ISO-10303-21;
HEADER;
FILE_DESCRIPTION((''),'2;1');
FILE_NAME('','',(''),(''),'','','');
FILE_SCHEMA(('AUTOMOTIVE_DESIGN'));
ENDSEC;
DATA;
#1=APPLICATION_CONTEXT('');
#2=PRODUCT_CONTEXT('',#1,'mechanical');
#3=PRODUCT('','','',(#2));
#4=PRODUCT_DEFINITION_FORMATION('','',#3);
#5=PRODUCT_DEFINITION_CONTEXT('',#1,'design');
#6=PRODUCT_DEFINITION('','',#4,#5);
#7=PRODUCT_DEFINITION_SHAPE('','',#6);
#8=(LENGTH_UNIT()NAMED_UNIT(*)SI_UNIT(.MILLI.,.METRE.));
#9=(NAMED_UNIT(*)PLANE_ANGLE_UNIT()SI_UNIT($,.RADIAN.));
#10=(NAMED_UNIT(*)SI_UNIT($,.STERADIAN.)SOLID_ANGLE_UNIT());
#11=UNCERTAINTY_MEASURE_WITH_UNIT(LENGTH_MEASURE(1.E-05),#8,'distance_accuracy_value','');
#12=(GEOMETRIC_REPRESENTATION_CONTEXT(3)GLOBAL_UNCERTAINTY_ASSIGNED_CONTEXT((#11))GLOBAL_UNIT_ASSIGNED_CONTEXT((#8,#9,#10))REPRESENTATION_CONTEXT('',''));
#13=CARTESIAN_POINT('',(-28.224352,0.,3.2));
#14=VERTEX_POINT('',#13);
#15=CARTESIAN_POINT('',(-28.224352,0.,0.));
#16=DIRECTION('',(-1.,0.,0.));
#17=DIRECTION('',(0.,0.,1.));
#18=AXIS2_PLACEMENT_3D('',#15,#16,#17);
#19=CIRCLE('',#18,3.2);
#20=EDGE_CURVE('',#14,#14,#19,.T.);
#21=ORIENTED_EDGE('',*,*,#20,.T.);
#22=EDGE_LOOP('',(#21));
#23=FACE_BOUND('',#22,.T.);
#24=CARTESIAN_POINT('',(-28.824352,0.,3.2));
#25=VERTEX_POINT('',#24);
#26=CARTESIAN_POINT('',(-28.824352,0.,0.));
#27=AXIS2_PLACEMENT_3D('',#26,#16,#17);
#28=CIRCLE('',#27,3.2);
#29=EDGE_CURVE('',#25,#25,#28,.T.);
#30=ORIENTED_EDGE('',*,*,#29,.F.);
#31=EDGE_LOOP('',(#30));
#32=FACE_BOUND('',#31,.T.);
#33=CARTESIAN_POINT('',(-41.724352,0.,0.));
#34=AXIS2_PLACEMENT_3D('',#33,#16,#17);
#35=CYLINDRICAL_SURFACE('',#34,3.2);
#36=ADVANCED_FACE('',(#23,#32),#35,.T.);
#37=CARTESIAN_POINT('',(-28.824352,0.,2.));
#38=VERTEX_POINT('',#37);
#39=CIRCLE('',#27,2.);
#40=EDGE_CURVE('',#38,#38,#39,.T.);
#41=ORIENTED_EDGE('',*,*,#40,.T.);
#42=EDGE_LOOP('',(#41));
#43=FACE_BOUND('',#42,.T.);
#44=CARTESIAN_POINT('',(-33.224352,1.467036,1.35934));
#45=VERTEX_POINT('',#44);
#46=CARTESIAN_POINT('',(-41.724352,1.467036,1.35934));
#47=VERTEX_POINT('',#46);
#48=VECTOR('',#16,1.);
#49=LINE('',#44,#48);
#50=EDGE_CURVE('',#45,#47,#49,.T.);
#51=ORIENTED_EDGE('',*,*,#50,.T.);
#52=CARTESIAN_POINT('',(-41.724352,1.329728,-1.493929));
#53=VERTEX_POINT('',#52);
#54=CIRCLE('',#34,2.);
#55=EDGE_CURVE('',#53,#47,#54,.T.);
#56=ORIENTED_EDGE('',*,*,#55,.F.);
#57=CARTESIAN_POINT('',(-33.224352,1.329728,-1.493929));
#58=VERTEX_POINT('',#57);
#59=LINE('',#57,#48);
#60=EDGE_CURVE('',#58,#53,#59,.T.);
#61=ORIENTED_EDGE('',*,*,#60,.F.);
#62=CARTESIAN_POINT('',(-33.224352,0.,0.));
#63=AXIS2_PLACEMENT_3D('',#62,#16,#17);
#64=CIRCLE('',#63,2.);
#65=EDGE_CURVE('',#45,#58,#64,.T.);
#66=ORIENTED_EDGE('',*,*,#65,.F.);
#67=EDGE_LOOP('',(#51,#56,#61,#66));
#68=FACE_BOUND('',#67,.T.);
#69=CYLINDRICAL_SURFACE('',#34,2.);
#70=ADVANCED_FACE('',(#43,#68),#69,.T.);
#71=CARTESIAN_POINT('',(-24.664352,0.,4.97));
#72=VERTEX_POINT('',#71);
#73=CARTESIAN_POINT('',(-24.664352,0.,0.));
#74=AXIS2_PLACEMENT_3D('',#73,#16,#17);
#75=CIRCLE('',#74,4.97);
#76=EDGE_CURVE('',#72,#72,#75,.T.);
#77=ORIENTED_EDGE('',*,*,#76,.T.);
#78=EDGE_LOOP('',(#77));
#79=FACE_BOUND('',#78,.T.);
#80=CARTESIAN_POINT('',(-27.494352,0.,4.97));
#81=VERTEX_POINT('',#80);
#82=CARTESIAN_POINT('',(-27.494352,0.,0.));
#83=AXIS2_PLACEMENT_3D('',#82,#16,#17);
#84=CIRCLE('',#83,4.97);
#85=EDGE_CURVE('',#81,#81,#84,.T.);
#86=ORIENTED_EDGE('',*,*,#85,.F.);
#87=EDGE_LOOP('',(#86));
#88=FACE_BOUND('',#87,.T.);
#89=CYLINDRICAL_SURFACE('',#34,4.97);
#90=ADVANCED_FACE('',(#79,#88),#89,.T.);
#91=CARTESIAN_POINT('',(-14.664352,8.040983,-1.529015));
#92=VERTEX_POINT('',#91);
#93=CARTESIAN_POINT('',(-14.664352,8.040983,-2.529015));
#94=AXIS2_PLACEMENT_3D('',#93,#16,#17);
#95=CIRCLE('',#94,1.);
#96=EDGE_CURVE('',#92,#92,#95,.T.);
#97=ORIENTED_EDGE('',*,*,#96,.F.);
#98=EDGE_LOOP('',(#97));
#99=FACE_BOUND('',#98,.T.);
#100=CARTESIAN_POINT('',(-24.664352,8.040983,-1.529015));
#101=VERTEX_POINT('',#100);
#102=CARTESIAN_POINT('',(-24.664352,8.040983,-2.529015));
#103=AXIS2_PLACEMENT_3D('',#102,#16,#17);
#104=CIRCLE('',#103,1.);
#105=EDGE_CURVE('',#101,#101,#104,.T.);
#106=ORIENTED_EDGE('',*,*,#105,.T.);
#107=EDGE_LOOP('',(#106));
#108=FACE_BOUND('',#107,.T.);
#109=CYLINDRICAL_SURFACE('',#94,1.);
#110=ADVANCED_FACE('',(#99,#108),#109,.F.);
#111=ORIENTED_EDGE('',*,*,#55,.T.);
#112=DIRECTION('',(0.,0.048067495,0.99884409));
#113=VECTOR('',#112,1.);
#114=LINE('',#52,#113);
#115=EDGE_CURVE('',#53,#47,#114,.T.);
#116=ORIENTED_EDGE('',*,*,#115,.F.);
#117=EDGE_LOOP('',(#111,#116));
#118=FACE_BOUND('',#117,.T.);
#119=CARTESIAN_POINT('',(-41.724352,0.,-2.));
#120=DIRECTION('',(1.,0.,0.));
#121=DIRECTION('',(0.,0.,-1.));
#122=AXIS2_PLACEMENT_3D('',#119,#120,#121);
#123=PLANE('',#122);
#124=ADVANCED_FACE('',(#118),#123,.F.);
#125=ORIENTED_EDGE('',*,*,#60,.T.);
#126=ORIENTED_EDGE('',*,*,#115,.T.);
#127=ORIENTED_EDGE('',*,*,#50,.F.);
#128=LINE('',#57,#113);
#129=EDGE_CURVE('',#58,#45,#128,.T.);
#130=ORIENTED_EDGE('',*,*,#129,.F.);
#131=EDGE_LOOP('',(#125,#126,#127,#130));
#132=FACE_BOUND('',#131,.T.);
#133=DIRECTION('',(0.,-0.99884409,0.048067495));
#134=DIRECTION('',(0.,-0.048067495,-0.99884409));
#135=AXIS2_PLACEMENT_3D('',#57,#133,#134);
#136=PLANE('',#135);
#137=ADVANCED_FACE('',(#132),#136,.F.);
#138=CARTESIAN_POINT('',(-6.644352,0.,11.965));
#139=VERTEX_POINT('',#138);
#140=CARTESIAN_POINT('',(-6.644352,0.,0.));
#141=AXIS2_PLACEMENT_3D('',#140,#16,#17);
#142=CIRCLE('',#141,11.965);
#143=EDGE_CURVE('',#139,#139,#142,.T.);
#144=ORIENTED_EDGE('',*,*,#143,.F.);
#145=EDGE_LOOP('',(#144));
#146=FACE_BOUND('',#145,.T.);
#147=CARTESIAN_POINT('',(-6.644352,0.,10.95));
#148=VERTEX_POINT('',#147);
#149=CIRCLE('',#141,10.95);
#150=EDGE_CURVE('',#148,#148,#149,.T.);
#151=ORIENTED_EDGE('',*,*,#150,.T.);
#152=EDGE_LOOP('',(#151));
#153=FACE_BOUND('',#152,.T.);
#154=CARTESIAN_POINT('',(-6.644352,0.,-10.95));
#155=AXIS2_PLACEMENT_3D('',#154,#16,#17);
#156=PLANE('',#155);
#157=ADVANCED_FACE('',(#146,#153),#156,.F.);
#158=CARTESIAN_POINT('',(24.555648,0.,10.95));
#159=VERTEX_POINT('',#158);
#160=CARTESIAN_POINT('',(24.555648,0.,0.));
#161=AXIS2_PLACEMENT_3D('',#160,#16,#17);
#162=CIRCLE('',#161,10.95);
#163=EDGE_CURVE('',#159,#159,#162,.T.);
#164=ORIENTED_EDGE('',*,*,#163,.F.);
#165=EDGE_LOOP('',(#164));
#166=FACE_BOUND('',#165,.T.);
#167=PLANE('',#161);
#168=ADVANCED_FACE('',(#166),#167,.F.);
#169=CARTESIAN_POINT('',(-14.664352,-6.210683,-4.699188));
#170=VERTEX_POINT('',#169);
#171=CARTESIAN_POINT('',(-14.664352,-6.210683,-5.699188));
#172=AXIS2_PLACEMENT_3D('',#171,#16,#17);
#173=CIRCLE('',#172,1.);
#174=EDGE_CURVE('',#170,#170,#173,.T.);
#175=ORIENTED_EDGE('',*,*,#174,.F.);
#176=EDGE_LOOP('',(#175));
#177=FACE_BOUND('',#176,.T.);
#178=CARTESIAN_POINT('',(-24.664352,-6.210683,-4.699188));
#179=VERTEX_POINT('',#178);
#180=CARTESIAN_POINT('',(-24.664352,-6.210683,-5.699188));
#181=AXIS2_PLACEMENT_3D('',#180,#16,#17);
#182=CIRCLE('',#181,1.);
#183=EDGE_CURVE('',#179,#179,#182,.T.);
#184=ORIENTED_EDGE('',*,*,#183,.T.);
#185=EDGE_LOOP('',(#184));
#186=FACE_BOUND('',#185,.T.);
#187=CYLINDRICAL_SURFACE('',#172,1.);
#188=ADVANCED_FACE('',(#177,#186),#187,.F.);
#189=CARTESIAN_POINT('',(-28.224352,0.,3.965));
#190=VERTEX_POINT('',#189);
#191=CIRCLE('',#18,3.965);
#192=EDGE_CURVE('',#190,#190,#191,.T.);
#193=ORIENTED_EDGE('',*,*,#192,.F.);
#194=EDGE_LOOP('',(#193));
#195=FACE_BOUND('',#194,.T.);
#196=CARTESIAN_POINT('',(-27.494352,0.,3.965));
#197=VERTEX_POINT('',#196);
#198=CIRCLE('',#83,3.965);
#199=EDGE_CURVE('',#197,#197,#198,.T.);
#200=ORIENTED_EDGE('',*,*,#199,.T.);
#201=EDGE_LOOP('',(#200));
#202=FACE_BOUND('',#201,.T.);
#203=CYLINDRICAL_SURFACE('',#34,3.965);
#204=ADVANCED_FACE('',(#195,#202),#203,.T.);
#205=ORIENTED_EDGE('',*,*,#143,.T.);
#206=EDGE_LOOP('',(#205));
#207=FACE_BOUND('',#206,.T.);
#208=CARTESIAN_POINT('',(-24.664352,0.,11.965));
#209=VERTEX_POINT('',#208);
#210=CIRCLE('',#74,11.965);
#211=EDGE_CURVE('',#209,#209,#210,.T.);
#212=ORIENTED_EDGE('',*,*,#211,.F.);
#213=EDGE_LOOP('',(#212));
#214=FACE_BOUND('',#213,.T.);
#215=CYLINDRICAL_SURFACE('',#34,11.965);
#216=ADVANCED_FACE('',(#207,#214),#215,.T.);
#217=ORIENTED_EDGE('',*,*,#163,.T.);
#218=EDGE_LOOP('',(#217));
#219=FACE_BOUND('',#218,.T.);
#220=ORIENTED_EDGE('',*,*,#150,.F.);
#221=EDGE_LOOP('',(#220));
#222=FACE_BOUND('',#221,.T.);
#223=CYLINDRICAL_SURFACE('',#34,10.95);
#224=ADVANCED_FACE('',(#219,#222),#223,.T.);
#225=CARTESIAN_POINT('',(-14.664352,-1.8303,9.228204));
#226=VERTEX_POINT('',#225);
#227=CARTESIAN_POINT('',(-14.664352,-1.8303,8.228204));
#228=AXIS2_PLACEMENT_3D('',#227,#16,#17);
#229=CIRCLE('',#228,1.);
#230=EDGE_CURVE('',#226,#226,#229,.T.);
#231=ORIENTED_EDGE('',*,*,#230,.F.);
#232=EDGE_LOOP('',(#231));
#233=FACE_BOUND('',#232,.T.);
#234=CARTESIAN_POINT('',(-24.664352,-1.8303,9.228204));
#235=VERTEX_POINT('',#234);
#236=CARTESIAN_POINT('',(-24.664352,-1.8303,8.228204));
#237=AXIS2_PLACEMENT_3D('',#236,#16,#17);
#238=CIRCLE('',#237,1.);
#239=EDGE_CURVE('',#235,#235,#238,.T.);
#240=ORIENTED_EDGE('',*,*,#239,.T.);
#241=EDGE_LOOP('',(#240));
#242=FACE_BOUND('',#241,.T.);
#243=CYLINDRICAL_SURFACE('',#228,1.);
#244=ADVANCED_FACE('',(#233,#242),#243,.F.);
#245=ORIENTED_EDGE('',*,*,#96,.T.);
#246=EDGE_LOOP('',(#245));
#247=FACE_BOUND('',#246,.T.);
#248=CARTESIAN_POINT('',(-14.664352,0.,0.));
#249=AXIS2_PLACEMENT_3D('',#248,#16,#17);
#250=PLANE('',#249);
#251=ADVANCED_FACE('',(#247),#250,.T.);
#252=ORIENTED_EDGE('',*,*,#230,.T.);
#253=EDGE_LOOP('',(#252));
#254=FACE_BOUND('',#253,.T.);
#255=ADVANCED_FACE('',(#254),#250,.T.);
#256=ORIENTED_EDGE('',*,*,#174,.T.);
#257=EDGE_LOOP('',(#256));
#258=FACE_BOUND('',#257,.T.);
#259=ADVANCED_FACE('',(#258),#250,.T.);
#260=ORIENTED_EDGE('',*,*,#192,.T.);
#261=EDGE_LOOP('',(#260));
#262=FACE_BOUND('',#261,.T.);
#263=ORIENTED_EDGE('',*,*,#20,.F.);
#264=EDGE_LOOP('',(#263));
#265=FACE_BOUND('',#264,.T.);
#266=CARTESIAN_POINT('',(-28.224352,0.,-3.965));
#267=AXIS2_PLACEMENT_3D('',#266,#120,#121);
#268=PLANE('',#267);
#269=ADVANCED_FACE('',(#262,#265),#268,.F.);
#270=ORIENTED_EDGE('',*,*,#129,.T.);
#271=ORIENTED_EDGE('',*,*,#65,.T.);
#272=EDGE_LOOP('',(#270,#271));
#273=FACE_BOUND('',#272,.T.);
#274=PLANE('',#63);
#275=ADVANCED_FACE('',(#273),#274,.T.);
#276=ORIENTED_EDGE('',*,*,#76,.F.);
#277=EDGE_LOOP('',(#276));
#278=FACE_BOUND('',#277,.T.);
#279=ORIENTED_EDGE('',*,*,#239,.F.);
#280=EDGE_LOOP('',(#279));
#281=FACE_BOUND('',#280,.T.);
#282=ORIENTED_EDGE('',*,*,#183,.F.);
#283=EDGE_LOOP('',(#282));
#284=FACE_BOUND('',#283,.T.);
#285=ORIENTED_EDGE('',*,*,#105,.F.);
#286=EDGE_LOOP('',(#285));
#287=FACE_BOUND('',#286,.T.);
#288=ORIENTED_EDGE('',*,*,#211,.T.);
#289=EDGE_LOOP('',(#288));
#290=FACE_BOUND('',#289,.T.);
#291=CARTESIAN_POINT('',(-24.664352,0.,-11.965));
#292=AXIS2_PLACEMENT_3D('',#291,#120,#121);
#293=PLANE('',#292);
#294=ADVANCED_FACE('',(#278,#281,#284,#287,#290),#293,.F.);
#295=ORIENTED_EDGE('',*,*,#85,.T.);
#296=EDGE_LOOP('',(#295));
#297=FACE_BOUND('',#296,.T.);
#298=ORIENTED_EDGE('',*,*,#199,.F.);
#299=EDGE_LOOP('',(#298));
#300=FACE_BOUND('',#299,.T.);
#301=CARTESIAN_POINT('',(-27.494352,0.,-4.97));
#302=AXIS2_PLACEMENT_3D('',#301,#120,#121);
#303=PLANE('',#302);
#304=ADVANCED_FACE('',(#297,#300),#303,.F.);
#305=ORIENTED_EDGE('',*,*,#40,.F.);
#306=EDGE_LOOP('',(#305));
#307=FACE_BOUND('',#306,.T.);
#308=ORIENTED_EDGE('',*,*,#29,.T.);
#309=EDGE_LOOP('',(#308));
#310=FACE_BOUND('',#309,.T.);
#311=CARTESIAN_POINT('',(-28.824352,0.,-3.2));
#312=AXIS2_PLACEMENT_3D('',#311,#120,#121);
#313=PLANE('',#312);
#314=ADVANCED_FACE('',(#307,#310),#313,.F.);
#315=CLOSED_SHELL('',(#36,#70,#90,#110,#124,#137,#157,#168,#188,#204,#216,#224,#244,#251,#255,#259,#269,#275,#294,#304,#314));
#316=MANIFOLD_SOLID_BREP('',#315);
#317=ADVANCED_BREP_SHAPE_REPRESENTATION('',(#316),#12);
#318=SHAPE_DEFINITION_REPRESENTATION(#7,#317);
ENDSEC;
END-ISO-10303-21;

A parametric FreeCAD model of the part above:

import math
import FreeCAD as App
import Part
import Sketcher

V = App.Vector
Q = App.Units.Quantity

doc = App.newDocument("Part")
body = doc.addObject("PartDesign::Body", "Body")

# Sketch on XZ plane
sketch1 = body.newObject("Sketcher::SketchObject", "Sketch")
sketch1.AttachmentSupport = (doc.getObject("XZ_Plane"), [""])
sketch1.MapMode = "FlatFace"
sketch1.addGeometry(Part.LineSegment(V(-41.724352, 0, 0), V(24.555648, 0, 0)), False)
sketch1.addGeometry(Part.LineSegment(V(24.555648, 0, 0), V(24.555648, -10.95, 0)), False)
sketch1.addGeometry(Part.LineSegment(V(24.555648, -10.95, 0), V(-6.644352, -10.95, 0)), False)
sketch1.addGeometry(Part.LineSegment(V(-6.644352, -10.95, 0), V(-6.644352, -11.965, 0)), False)
sketch1.addGeometry(Part.LineSegment(V(-6.644352, -11.965, 0), V(-24.664352, -11.965, 0)), False)
sketch1.addGeometry(Part.LineSegment(V(-24.664352, -11.965, 0), V(-24.664352, -4.97, 0)), False)
sketch1.addGeometry(Part.LineSegment(V(-24.664352, -4.97, 0), V(-27.494352, -4.97, 0)), False)
sketch1.addGeometry(Part.LineSegment(V(-27.494352, -4.97, 0), V(-27.494352, -3.965, 0)), False)
sketch1.addGeometry(Part.LineSegment(V(-27.494352, -3.965, 0), V(-28.224352, -3.965, 0)), False)
sketch1.addGeometry(Part.LineSegment(V(-28.224352, -3.965, 0), V(-28.224352, -3.2, 0)), False)
sketch1.addGeometry(Part.LineSegment(V(-28.224352, -3.2, 0), V(-28.824352, -3.2, 0)), False)
sketch1.addGeometry(Part.LineSegment(V(-28.824352, -3.2, 0), V(-28.824352, -2, 0)), False)
sketch1.addGeometry(Part.LineSegment(V(-28.824352, -2, 0), V(-41.724352, -2, 0)), False)
sketch1.addGeometry(Part.LineSegment(V(-41.724352, -2, 0), V(-41.724352, 0, 0)), False)
sketch1.addConstraint(Sketcher.Constraint("Coincident", 0, 2, 1, 1))
sketch1.addConstraint(Sketcher.Constraint("Coincident", 1, 2, 2, 1))
sketch1.addConstraint(Sketcher.Constraint("Coincident", 2, 2, 3, 1))
sketch1.addConstraint(Sketcher.Constraint("Coincident", 3, 2, 4, 1))
sketch1.addConstraint(Sketcher.Constraint("Coincident", 4, 2, 5, 1))
sketch1.addConstraint(Sketcher.Constraint("Coincident", 5, 2, 6, 1))
sketch1.addConstraint(Sketcher.Constraint("Coincident", 6, 2, 7, 1))
sketch1.addConstraint(Sketcher.Constraint("Coincident", 7, 2, 8, 1))
sketch1.addConstraint(Sketcher.Constraint("Coincident", 8, 2, 9, 1))
sketch1.addConstraint(Sketcher.Constraint("Coincident", 9, 2, 10, 1))
sketch1.addConstraint(Sketcher.Constraint("Coincident", 10, 2, 11, 1))
sketch1.addConstraint(Sketcher.Constraint("Coincident", 11, 2, 12, 1))
sketch1.addConstraint(Sketcher.Constraint("Coincident", 12, 2, 13, 1))
sketch1.addConstraint(Sketcher.Constraint("Coincident", 13, 2, 0, 1))
sketch1.addConstraint(Sketcher.Constraint("Horizontal", 0))
sketch1.addConstraint(Sketcher.Constraint("Vertical", 1))
sketch1.addConstraint(Sketcher.Constraint("Horizontal", 2))
sketch1.addConstraint(Sketcher.Constraint("Vertical", 3))
sketch1.addConstraint(Sketcher.Constraint("Horizontal", 4))
sketch1.addConstraint(Sketcher.Constraint("Vertical", 5))
sketch1.addConstraint(Sketcher.Constraint("Horizontal", 6))
sketch1.addConstraint(Sketcher.Constraint("Vertical", 7))
sketch1.addConstraint(Sketcher.Constraint("Horizontal", 8))
sketch1.addConstraint(Sketcher.Constraint("Vertical", 9))
sketch1.addConstraint(Sketcher.Constraint("Horizontal", 10))
sketch1.addConstraint(Sketcher.Constraint("Vertical", 11))
sketch1.addConstraint(Sketcher.Constraint("Horizontal", 12))
sketch1.addConstraint(Sketcher.Constraint("Vertical", 13))
sketch1.addConstraint(Sketcher.Constraint("PointOnObject", 0, 2, -1))
sketch1.addConstraint(Sketcher.Constraint("DistanceY", 13, 1, 13, 2, Q("2 mm")))
sketch1.addConstraint(Sketcher.Constraint("DistanceX", 2, 2, 2, 1, Q("31.2 mm")))
sketch1.addConstraint(Sketcher.Constraint("DistanceX", 10, 2, 10, 1, Q("0.6 mm")))
sketch1.addConstraint(Sketcher.Constraint("DistanceX", 12, 2, 12, 1, Q("12.9 mm")))
sketch1.addConstraint(Sketcher.Constraint("DistanceY", 11, 1, 11, 2, Q("1.2 mm")))
sketch1.addConstraint(Sketcher.Constraint("DistanceY", 4, 2, 7, 2, Q("8 mm")))
sketch1.addConstraint(Sketcher.Constraint("DistanceX", 0, 1, 0, 2, Q("66.28 mm")))
sketch1.addConstraint(Sketcher.Constraint("DistanceX", 4, 2, 4, 1, Q("18.02 mm")))
sketch1.addConstraint(Sketcher.Constraint("DistanceX", 6, 2, 6, 1, Q("2.83 mm")))
sketch1.addConstraint(Sketcher.Constraint("DistanceY", 1, 2, 1, 1, Q("10.95 mm")))
sketch1.addConstraint(Sketcher.Constraint("DistanceY", 3, 2, 3, 1, Q("1.015 mm")))
sketch1.addConstraint(Sketcher.Constraint("DistanceY", 5, 1, 5, 2, Q("6.995 mm")))
sketch1.addConstraint(Sketcher.Constraint("DistanceX", -1, 1, 0, 2, Q("24.555648 mm")))
revolution = body.newObject("PartDesign::Revolution", "Revolution")
revolution.Profile = sketch1
revolution.ReferenceAxis = (sketch1, ["H_Axis"])
revolution.Angle = 360

# Sketch on YZ plane
sketch2 = body.newObject("Sketcher::SketchObject", "Sketch001")
sketch2.AttachmentSupport = (doc.getObject("YZ_Plane"), [""])
sketch2.MapMode = "FlatFace"
sketch2.AttachmentOffset = App.Placement(V(0, 0, -41.724352), App.Rotation())
sketch2.addGeometry(Part.LineSegment(V(1.329728, -1.493929, 0), V(1.467036, 1.35934, 0)), False)
sketch2.addGeometry(Part.ArcOfCircle(Part.Circle(V(0, 0, 0), V(0, 0, 1), 2), math.radians(-48.328122), math.radians(42.81787)), False)
sketch2.addConstraint(Sketcher.Constraint("Coincident", 0, 1, 1, 1))
sketch2.addConstraint(Sketcher.Constraint("Coincident", 1, 2, 0, 2))
sketch2.addConstraint(Sketcher.Constraint("Coincident", 1, 3, -1, 1))
sketch2.addConstraint(Sketcher.Constraint("Radius", 1, Q("2 mm")))
sketch2.addConstraint(Sketcher.Constraint("Distance", 0, Q("2.856571 mm")))
sketch2.addConstraint(Sketcher.Constraint("DistanceY", 0, 1, -1, 1, Q("1.493929 mm")))
pocket1 = body.newObject("PartDesign::Pocket", "Pocket")
pocket1.Profile = sketch2
pocket1.Length = 8.5
pocket1.Reversed = True

# Sketch on YZ plane
sketch3 = body.newObject("Sketcher::SketchObject", "Sketch002")
sketch3.AttachmentSupport = (doc.getObject("YZ_Plane"), [""])
sketch3.MapMode = "FlatFace"
sketch3.AttachmentOffset = App.Placement(V(0, 0, -24.664352), App.Rotation())
sketch3.addGeometry(Part.Circle(V(8.040983, -2.529015, 0), V(0, 0, 1), 1), False)
sketch3.addGeometry(Part.Circle(V(-6.210683, -5.699188, 0), V(0, 0, 1), 1), False)
sketch3.addGeometry(Part.Circle(V(-1.8303, 8.228204, 0), V(0, 0, 1), 1), False)
sketch3.addConstraint(Sketcher.Constraint("Equal", 0, 1))
sketch3.addConstraint(Sketcher.Constraint("Equal", 1, 2))
sketch3.addConstraint(Sketcher.Constraint("Diameter", 0, Q("2 mm")))
sketch3.addConstraint(Sketcher.Constraint("DistanceX", 2, 3, -1, 1, Q("1.8303 mm")))
sketch3.addConstraint(Sketcher.Constraint("DistanceY", 1, 3, -1, 1, Q("5.699188 mm")))
sketch3.addConstraint(Sketcher.Constraint("DistanceY", 0, 3, 2, 3, Q("10.757219 mm")))
sketch3.addConstraint(Sketcher.Constraint("DistanceY", 1, 3, 2, 3, Q("13.927392 mm")))
sketch3.addConstraint(Sketcher.Constraint("DistanceX", -1, 1, 0, 3, Q("8.040983 mm")))
sketch3.addConstraint(Sketcher.Constraint("DistanceX", 1, 3, -1, 1, Q("6.210683 mm")))
pocket2 = body.newObject("PartDesign::Pocket", "Pocket001")
pocket2.Profile = sketch3
pocket2.Length = 10
pocket2.Reversed = True

doc.recompute()
